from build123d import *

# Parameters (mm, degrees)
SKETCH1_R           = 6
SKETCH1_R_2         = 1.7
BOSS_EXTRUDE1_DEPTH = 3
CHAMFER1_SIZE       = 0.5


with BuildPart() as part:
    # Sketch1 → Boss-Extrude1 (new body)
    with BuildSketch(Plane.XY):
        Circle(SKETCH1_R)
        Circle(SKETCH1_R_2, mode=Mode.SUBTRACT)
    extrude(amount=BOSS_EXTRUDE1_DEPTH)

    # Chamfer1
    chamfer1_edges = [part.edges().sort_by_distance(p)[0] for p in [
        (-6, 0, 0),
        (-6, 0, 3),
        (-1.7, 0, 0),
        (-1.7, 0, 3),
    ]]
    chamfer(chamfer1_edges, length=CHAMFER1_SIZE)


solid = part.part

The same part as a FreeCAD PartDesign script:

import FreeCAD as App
import Part
import Sketcher
from FreeCAD import Vector


def edges_at(feature, points):
    """Names of the edges that pass closest to the given points."""
    edges = feature.Shape.Edges
    near = lambda p: min(range(len(edges)), key=lambda i: edges[i].distToShape(Part.Vertex(*p))[0])
    return sorted({f"Edge{near(p) + 1}" for p in points})

doc = App.newDocument("Part")
body = doc.addObject("PartDesign::Body", "Body")

# Sketch on XY plane
sketch1 = body.newObject("Sketcher::SketchObject", "Sketch")
sketch1.AttachmentSupport = (doc.getObject("XY_Plane"), [""])
sketch1.MapMode = "FlatFace"
sketch1.addGeometry(Part.Circle(Vector(0, 0, 0), Vector(0, 0, 1), 6), False)
sketch1.addGeometry(Part.Circle(Vector(0, 0, 0), Vector(0, 0, 1), 1.7), False)
sketch1.addConstraint(Sketcher.Constraint("Coincident", 0, 3, -1, 1))
sketch1.addConstraint(Sketcher.Constraint("Coincident", 1, 3, -1, 1))
sketch1.addConstraint(Sketcher.Constraint("Diameter", 0, 12.0))
sketch1.addConstraint(Sketcher.Constraint("Diameter", 1, 3.4))
pad1 = body.newObject("PartDesign::Pad", "Pad")
pad1.Profile = sketch1
pad1.Length = 3
doc.recompute()

chamfer = body.newObject("PartDesign::Chamfer", "Chamfer")
chamfer.Base = (pad1, edges_at(pad1, [
    (-6, 0, 0),
    (-6, 0, 3),
    (-1.7, 0, 0),
    (-1.7, 0, 3),
]))
chamfer.Size = 0.5

doc.recompute()
